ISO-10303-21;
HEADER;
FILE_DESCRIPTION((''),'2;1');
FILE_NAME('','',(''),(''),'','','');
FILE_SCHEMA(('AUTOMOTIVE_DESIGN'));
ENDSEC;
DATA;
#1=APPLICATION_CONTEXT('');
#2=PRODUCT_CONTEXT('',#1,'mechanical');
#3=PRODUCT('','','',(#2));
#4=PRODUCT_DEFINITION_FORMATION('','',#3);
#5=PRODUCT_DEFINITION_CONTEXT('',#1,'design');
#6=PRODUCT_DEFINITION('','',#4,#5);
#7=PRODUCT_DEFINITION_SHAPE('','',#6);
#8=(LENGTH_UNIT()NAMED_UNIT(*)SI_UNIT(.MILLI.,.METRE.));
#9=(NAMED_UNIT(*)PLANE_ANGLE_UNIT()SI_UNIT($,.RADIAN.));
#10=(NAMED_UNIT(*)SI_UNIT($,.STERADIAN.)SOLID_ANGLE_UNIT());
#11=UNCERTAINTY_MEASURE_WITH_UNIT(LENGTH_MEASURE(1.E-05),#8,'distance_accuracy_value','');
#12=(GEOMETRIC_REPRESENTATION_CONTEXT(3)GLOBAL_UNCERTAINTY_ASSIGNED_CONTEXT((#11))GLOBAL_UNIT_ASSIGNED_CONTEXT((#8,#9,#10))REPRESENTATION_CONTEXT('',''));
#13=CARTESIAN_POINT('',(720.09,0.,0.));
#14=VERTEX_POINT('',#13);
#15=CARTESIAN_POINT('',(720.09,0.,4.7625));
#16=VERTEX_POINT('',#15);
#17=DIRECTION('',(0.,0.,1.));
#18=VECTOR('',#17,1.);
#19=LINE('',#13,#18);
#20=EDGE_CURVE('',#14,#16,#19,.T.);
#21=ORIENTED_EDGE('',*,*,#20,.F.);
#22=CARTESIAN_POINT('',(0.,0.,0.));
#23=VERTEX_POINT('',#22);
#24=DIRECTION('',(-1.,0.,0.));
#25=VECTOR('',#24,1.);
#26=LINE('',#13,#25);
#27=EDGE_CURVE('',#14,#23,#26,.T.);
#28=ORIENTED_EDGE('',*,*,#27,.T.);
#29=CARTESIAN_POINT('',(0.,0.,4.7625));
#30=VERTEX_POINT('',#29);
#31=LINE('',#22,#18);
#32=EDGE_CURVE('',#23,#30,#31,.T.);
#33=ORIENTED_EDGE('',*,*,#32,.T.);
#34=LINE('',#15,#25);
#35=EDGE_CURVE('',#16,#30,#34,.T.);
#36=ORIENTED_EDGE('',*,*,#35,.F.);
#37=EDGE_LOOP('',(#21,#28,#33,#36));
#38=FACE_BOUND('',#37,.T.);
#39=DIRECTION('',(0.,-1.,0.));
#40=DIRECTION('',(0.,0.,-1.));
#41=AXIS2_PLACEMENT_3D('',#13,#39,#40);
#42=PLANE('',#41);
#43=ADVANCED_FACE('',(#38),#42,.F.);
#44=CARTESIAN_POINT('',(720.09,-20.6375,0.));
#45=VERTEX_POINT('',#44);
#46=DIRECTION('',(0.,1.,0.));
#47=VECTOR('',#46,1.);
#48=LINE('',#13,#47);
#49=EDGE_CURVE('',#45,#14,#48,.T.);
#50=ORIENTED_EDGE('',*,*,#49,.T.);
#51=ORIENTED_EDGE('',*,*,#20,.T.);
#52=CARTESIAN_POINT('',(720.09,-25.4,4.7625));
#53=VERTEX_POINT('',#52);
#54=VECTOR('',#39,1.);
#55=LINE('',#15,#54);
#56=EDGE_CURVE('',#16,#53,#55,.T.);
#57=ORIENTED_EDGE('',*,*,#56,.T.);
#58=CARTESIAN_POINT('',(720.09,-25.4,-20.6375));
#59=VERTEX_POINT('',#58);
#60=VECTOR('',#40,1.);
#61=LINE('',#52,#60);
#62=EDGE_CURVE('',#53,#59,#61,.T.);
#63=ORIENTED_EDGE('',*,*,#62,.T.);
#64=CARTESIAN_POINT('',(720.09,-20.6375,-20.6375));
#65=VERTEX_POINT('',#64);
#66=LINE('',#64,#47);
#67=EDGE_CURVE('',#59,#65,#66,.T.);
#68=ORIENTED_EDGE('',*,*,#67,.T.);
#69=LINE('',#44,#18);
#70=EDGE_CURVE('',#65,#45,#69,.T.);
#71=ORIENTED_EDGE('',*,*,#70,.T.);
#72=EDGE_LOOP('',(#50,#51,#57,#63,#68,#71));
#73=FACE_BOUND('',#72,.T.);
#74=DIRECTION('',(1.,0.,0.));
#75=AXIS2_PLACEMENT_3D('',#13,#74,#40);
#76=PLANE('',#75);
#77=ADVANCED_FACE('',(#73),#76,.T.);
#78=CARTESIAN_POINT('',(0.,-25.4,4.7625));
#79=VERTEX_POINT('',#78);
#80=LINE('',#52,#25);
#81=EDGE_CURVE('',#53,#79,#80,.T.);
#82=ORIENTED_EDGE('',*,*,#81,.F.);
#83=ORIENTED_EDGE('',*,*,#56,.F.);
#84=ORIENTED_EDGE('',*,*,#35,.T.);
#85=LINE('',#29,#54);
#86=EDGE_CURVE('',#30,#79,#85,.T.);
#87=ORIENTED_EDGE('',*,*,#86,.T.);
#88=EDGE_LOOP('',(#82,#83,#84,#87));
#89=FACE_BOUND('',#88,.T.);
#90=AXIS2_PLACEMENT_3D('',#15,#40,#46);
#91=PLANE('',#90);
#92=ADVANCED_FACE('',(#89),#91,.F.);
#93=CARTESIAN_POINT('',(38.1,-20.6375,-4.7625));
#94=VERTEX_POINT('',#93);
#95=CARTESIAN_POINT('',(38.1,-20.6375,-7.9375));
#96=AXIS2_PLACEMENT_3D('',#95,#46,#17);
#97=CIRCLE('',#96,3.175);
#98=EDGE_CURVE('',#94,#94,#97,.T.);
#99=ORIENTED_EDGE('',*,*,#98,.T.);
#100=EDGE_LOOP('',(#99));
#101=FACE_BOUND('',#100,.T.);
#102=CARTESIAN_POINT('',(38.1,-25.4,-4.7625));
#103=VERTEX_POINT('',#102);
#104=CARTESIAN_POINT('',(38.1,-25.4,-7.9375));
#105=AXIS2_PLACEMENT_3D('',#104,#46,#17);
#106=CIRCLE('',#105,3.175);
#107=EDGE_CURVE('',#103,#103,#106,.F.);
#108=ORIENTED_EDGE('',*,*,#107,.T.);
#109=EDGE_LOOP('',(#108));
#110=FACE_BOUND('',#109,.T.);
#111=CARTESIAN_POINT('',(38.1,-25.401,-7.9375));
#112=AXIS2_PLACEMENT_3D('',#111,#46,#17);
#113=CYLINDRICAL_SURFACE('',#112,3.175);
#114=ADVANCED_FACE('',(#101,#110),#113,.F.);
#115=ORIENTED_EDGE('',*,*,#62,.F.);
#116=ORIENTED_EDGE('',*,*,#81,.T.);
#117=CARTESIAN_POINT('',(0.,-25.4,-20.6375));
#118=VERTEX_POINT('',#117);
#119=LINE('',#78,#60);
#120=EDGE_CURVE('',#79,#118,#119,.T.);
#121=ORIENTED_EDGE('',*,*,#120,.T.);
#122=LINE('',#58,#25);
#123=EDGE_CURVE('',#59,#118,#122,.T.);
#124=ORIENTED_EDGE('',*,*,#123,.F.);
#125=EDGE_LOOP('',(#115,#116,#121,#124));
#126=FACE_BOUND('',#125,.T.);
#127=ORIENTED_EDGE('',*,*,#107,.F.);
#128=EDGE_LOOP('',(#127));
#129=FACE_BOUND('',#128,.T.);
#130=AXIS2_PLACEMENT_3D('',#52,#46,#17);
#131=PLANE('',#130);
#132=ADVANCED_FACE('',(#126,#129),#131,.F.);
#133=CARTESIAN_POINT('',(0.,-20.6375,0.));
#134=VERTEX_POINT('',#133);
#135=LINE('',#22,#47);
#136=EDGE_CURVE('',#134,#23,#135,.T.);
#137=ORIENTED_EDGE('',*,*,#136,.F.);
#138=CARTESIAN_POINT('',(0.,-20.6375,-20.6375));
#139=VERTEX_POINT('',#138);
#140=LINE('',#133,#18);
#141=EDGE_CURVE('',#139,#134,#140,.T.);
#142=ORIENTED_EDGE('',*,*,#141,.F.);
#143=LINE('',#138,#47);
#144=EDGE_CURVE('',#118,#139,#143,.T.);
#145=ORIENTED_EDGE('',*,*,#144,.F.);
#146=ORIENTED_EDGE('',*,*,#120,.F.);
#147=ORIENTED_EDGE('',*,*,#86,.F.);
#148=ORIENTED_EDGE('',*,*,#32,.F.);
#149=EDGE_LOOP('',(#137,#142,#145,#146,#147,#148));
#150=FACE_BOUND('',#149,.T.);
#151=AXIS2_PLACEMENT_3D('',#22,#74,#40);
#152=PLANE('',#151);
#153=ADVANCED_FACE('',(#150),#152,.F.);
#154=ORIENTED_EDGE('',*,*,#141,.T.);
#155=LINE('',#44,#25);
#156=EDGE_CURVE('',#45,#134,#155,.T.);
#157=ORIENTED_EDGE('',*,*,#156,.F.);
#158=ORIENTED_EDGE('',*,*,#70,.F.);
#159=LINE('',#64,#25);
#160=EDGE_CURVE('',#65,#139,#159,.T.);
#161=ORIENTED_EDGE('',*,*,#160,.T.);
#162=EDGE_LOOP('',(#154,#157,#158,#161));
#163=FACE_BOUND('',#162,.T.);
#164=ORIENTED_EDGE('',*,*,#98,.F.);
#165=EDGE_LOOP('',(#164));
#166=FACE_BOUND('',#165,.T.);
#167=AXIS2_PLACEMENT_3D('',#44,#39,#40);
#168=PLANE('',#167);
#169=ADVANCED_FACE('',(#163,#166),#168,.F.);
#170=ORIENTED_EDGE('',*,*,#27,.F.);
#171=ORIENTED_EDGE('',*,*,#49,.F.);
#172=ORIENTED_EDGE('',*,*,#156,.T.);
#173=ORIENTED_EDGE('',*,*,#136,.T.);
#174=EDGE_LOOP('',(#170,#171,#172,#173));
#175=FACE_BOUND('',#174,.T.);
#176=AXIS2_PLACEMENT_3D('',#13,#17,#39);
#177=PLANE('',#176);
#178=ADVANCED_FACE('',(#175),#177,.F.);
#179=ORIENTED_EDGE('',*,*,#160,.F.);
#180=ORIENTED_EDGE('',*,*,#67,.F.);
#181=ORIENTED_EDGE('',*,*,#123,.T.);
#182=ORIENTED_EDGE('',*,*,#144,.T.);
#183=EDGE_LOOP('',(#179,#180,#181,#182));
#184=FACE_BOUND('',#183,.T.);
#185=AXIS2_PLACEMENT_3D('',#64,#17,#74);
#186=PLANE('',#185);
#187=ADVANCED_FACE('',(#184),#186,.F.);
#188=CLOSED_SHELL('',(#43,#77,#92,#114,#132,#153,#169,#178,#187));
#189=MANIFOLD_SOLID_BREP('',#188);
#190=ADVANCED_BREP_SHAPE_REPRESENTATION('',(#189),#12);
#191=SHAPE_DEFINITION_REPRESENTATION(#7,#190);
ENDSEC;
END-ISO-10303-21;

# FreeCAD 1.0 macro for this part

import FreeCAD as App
import Part
import Sketcher

V = App.Vector
Q = App.Units.Quantity

doc = App.newDocument("Part")
body = doc.addObject("PartDesign::Body", "Body")

# Sketch on YZ plane
sketch1 = body.newObject("Sketcher::SketchObject", "Sketch")
sketch1.AttachmentSupport = (doc.getObject("YZ_Plane"), [""])
sketch1.MapMode = "FlatFace"
sketch1.addGeometry(Part.LineSegment(V(-20.6, 0, 0), V(0, 0, 0)), False)
sketch1.addGeometry(Part.LineSegment(V(0, 0, 0), V(0, 4.8, 0)), False)
sketch1.addGeometry(Part.LineSegment(V(0, 4.8, 0), V(-25.4, 4.8, 0)), False)
sketch1.addGeometry(Part.LineSegment(V(-25.4, 4.8, 0), V(-25.4, -20.6, 0)), False)
sketch1.addGeometry(Part.LineSegment(V(-25.4, -20.6, 0), V(-20.6, -20.6, 0)), False)
sketch1.addGeometry(Part.LineSegment(V(-20.6, -20.6, 0), V(-20.6, 0, 0)), False)
sketch1.addConstraint(Sketcher.Constraint("Coincident", 0, 2, 1, 1))
sketch1.addConstraint(Sketcher.Constraint("Coincident", 1, 2, 2, 1))
sketch1.addConstraint(Sketcher.Constraint("Coincident", 2, 2, 3, 1))
sketch1.addConstraint(Sketcher.Constraint("Coincident", 3, 2, 4, 1))
sketch1.addConstraint(Sketcher.Constraint("Coincident", 4, 2, 5, 1))
sketch1.addConstraint(Sketcher.Constraint("Coincident", 5, 2, 0, 1))
sketch1.addConstraint(Sketcher.Constraint("Horizontal", 0))
sketch1.addConstraint(Sketcher.Constraint("Vertical", 1))
sketch1.addConstraint(Sketcher.Constraint("Horizontal", 2))
sketch1.addConstraint(Sketcher.Constraint("Vertical", 3))
sketch1.addConstraint(Sketcher.Constraint("Horizontal", 4))
sketch1.addConstraint(Sketcher.Constraint("Vertical", 5))
sketch1.addConstraint(Sketcher.Constraint("Coincident", 0, 2, -1, 1))
sketch1.addConstraint(Sketcher.Constraint("Equal", 4, 1))
sketch1.addConstraint(Sketcher.Constraint("Equal", 2, 3))
sketch1.addConstraint(Sketcher.Constraint("DistanceX", 2, 2, 2, 1, Q("1 in")))
sketch1.addConstraint(Sketcher.Constraint("DistanceX", 0, 1, 0, 2, Q("0.8125 in")))
pad1 = body.newObject("PartDesign::Pad", "Pad")
pad1.Profile = sketch1
pad1.Length = Q("28.35 in")

# Sketch on XZ plane
sketch2 = body.newObject("Sketcher::SketchObject", "Sketch001")
sketch2.AttachmentSupport = (doc.getObject("XZ_Plane"), [""])
sketch2.MapMode = "FlatFace"
sketch2.AttachmentOffset = App.Placement(V(0, 0, 0.8125 * 25.4), App.Rotation())
sketch2.addGeometry(Part.Circle(V(38.1, -7.9, 0), V(0, 0, 1), 3.2), False)
sketch2.addConstraint(Sketcher.Constraint("Diameter", 0, Q("0.25 in")))
sketch2.addConstraint(Sketcher.Constraint("DistanceX", -1, 1, 0, 3, Q("1.5 in")))
sketch2.addConstraint(Sketcher.Constraint("DistanceY", 0, 3, -1, 1, Q("0.3125 in")))
pocket1 = body.newObject("PartDesign::Pocket", "Pocket")
pocket1.Profile = sketch2
pocket1.Type = "UpToFirst"
pocket1.Reversed = True

doc.recompute()
